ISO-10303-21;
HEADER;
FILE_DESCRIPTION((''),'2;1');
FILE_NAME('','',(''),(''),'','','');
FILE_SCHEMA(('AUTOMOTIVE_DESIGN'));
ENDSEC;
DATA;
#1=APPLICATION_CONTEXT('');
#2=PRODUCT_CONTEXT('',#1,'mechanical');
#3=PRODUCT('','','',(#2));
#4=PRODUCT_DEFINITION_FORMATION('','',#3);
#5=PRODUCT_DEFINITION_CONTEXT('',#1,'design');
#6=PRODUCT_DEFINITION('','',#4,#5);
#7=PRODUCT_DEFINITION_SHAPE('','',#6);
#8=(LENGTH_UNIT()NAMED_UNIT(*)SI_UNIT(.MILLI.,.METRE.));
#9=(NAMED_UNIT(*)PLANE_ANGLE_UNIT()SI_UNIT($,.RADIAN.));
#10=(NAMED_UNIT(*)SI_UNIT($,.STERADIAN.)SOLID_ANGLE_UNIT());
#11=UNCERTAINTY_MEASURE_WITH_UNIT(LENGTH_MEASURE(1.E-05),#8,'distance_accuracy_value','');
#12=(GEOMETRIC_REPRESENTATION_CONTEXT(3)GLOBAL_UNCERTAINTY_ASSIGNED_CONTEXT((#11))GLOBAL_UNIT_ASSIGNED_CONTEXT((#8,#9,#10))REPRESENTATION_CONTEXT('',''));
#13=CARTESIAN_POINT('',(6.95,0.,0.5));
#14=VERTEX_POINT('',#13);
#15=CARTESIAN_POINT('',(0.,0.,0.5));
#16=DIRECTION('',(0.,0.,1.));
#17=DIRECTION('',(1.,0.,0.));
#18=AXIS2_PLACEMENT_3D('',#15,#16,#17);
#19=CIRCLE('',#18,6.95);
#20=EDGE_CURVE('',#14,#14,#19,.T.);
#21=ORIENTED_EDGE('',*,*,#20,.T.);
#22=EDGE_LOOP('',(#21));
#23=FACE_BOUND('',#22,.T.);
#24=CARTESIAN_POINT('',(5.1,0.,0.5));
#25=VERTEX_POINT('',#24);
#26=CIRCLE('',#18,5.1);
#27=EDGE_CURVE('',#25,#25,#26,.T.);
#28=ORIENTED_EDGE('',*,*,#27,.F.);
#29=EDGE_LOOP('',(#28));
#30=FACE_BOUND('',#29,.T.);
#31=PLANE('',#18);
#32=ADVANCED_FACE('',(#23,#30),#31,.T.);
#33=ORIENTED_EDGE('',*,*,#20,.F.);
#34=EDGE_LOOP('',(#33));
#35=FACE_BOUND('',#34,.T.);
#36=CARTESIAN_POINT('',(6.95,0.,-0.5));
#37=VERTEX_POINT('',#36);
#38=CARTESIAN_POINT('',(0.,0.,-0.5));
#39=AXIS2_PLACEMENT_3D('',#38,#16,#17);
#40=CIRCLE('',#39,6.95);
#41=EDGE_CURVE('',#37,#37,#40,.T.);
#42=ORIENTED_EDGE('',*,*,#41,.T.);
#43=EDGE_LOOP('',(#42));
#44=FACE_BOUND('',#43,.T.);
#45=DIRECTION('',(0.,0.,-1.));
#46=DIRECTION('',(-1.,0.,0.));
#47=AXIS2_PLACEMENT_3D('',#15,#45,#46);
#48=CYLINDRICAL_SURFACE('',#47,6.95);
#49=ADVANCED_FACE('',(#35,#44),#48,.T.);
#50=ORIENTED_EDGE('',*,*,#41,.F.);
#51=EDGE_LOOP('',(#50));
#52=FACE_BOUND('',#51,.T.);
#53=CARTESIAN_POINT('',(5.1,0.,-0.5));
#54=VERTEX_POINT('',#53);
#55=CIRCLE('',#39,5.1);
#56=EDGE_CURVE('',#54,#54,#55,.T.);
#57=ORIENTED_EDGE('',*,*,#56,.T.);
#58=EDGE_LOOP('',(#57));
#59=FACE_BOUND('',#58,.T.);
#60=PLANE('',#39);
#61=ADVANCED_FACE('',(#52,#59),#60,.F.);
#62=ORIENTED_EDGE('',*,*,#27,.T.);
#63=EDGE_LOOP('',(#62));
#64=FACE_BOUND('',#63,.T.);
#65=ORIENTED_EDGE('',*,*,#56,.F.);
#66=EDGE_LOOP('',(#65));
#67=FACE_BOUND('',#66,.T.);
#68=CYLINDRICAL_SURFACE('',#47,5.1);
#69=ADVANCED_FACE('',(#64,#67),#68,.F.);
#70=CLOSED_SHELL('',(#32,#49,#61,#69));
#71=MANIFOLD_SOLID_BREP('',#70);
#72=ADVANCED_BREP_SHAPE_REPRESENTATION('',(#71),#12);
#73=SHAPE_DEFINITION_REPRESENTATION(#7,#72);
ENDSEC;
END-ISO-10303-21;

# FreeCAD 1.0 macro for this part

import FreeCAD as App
import Part
import Sketcher

V = App.Vector
Q = App.Units.Quantity

doc = App.newDocument("Part")
params = doc.addObject("Spreadsheet::Sheet", "Params")
for row, (alias, value) in enumerate([
    ("sketch1_diameter", "13.9 mm"),
    ("sketch1_diameter2", "10.2 mm"),
    ("pad1_length", "1 mm"),
], start=1):
    params.set(f"A{row}", alias)
    params.set(f"B{row}", "=" + value)
    params.setAlias(f"B{row}", alias)

body = doc.addObject("PartDesign::Body", "Body")

# Sketch on XY plane
sketch1 = doc.addObject("Sketcher::SketchObject", "Sketch")
body.addObject(sketch1)
sketch1.AttachmentSupport = (doc.XY_Plane, [""])
sketch1.MapMode = "FlatFace"
sketch1.addGeometry(Part.Circle(V(0, 0, 0), V(0, 0, 1), 6.95), False)
sketch1.addGeometry(Part.Circle(V(0, 0, 0), V(0, 0, 1), 5.1), False)
sketch1.addConstraint(Sketcher.Constraint("Coincident", 0, 3, -1, 1))
sketch1.addConstraint(Sketcher.Constraint("Coincident", 1, 3, -1, 1))
sketch1.addConstraint(Sketcher.Constraint("Diameter", 0, Q("13.9 mm")))
sketch1.addConstraint(Sketcher.Constraint("Diameter", 1, Q("10.2 mm")))
sketch1.setExpression("Constraints[2]", "Params.sketch1_diameter")
sketch1.setExpression("Constraints[3]", "Params.sketch1_diameter2")
pad1 = doc.addObject("PartDesign::Pad", "Pad")
body.addObject(pad1)
pad1.Profile = sketch1
pad1.setExpression("Length", "Params.pad1_length")
pad1.Midplane = True

doc.recompute()
